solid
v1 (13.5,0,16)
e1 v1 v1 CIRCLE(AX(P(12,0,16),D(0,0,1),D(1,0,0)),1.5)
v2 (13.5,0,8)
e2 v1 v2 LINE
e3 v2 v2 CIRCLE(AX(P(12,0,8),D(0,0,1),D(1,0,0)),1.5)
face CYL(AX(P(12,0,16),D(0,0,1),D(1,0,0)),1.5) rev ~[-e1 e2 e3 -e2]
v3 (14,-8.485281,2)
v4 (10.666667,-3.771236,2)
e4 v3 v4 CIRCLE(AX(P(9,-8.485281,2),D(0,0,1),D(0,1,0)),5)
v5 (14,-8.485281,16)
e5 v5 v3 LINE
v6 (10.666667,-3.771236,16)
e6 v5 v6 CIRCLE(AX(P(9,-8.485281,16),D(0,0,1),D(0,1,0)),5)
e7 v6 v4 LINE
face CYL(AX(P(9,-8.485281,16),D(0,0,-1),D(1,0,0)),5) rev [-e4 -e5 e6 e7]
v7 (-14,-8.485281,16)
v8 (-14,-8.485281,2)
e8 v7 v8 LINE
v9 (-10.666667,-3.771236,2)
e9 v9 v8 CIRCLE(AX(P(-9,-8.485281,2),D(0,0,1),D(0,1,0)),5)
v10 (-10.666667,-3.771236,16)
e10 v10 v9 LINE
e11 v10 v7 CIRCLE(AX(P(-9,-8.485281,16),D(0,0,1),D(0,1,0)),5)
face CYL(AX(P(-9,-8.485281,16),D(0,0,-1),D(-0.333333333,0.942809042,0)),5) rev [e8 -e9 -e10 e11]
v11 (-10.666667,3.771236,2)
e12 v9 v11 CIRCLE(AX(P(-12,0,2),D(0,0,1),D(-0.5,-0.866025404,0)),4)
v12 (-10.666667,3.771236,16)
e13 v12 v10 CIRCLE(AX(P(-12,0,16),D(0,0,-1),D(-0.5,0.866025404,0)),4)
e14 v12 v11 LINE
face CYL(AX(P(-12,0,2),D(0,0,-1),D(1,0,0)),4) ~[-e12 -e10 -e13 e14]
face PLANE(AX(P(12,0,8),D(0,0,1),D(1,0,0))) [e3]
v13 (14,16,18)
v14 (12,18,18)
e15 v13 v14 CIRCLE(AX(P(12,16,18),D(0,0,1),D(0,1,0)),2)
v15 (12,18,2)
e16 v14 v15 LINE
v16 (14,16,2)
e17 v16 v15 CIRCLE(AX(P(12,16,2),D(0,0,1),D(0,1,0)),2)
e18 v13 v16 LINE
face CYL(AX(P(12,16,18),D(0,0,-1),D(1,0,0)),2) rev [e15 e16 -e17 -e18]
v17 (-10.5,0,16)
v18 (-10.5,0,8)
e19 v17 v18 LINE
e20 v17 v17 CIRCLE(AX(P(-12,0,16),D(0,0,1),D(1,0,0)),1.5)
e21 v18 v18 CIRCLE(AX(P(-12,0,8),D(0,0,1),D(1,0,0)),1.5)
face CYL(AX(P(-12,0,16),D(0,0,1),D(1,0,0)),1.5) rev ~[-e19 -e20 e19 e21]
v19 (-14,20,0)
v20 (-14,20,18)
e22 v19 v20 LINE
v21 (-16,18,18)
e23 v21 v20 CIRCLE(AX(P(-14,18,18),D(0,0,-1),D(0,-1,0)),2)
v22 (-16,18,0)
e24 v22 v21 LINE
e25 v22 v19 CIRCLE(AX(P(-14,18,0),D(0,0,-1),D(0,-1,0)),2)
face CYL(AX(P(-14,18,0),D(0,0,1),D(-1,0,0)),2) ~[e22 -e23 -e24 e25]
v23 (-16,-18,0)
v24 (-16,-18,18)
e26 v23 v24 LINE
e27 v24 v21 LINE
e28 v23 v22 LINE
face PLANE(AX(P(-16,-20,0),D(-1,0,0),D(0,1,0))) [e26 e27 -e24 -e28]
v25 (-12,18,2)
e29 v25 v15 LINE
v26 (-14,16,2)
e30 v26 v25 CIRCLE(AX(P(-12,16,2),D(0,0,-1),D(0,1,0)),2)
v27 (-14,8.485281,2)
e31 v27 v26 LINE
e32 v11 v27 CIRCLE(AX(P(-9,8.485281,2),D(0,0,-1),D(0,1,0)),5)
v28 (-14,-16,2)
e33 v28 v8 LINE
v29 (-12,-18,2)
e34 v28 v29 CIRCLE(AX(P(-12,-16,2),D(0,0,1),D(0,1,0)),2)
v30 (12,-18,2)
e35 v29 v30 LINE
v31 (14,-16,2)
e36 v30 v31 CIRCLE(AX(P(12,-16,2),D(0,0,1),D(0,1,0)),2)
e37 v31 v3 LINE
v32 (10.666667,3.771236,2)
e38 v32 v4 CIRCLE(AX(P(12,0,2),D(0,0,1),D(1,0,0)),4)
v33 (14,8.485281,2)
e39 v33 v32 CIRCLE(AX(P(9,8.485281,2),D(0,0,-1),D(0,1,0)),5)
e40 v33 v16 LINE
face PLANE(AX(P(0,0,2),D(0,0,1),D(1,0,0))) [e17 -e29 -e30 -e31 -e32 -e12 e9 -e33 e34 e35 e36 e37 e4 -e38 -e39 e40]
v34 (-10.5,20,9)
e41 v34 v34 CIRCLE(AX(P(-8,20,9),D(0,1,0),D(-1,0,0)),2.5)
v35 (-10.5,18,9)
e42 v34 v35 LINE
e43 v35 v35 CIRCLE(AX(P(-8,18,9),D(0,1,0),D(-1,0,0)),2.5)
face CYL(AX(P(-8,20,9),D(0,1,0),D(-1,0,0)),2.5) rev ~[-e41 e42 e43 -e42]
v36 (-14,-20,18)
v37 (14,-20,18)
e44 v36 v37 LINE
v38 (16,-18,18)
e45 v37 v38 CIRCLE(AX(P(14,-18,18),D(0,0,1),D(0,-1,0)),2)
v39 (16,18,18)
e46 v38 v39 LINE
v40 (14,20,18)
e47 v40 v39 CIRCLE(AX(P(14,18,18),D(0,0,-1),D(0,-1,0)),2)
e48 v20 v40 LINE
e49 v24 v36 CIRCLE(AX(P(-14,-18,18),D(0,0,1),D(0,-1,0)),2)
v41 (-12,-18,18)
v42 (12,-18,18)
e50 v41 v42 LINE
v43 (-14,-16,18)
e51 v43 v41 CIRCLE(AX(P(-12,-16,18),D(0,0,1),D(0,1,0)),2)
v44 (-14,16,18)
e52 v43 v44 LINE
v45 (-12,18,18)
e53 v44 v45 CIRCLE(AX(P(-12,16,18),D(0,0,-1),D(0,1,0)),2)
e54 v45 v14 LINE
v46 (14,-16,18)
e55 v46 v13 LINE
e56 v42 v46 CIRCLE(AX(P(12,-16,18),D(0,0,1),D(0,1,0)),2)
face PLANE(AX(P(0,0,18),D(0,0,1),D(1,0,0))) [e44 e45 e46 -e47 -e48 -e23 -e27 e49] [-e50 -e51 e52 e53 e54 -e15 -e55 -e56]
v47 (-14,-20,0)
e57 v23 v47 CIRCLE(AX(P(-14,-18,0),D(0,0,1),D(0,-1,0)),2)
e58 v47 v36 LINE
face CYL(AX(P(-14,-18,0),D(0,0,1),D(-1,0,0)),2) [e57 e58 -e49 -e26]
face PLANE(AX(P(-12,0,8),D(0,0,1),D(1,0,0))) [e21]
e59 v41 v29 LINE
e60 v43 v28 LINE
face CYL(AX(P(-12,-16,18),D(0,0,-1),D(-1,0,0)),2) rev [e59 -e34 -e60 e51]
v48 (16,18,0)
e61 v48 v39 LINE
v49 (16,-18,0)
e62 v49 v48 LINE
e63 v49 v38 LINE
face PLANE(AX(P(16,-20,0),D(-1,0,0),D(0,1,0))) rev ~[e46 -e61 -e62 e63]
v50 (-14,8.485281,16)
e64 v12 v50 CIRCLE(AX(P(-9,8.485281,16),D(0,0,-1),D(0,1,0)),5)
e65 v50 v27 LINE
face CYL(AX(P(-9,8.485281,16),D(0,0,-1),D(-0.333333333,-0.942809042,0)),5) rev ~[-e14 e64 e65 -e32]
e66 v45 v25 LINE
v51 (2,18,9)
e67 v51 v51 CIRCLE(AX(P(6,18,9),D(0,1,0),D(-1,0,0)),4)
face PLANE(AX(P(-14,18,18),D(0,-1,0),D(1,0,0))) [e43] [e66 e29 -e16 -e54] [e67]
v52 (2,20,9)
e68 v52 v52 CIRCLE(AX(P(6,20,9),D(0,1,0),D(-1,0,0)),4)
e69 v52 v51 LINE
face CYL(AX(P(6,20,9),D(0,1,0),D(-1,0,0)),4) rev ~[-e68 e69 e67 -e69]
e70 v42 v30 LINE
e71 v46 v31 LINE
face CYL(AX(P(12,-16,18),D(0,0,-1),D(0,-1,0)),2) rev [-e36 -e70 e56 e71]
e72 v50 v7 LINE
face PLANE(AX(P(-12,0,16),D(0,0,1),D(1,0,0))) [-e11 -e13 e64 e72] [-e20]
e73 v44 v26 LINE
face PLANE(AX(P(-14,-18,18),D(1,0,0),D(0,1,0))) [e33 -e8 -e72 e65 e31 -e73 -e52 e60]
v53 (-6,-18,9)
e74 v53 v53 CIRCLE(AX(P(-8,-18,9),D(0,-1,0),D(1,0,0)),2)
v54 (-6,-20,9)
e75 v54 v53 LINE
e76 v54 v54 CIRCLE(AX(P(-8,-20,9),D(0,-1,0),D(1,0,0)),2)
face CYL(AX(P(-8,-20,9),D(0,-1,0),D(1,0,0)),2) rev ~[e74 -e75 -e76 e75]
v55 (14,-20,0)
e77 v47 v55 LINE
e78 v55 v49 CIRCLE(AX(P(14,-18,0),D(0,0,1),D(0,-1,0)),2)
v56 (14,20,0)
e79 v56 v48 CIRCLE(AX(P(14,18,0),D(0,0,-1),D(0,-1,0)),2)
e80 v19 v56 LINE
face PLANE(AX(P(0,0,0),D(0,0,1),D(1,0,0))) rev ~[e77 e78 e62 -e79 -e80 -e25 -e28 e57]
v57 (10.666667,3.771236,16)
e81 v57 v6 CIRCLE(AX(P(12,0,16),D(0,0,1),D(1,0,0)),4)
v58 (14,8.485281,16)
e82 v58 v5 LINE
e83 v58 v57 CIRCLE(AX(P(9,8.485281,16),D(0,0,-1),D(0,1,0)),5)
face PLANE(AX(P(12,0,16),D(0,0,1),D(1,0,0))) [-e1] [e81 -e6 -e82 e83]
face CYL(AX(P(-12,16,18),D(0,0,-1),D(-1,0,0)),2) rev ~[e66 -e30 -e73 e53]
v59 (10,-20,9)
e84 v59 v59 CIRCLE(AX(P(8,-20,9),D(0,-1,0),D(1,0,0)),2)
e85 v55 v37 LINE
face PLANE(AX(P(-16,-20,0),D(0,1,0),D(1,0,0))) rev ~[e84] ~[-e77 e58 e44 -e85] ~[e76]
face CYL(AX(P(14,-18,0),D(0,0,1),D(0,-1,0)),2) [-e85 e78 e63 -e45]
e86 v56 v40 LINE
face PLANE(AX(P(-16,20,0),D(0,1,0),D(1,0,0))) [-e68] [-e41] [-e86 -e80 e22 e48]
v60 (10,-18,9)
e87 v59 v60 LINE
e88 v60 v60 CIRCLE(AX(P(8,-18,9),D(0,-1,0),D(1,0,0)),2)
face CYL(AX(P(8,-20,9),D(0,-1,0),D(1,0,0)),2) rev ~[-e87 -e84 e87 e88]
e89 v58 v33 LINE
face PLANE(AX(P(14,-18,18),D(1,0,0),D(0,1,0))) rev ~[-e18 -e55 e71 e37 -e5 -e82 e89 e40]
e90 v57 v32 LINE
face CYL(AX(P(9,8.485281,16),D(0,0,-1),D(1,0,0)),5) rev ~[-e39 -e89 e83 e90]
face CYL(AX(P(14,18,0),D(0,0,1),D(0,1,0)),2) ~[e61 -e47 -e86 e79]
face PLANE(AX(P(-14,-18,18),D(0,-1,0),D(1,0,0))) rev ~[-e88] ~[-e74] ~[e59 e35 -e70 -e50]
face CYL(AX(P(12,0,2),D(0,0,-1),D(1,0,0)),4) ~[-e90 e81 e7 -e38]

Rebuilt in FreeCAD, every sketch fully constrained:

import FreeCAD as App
import Part
import Sketcher


def edges_at(feature, points):
    """Names of the edges that pass closest to the given points."""
    edges = feature.Shape.Edges
    near = lambda p: min(range(len(edges)), key=lambda i: edges[i].distToShape(Part.Vertex(*p))[0])
    return sorted({f"Edge{near(p) + 1}" for p in points})


def add_polygon(sketch, points):
    """Adds a closed chain of lines whose ends are joined by coincident constraints."""
    first, n = sketch.GeometryCount, len(points)
    for a, b in zip(points, points[1:] + points[:1]):
        sketch.addGeometry(Part.LineSegment(App.Vector(*a, 0), App.Vector(*b, 0)), False)
    for i in range(n):
        sketch.addConstraint(Sketcher.Constraint("Coincident", first + i, 2, first + (i + 1) % n, 1))

doc = App.newDocument("Part")
body = doc.addObject("PartDesign::Body", "Body")

sketch1 = doc.addObject("Sketcher::SketchObject", "Sketch")
body.addObject(sketch1)
sketch1.AttachmentSupport = (doc.XY_Plane, [""])
sketch1.MapMode = "FlatFace"
add_polygon(sketch1, [(-16, 20), (-16, -20), (16, -20), (16, 20)])
sketch1.addConstraint(Sketcher.Constraint("Vertical", 0))
sketch1.addConstraint(Sketcher.Constraint("Horizontal", 1))
sketch1.addConstraint(Sketcher.Constraint("Vertical", 2))
sketch1.addConstraint(Sketcher.Constraint("Horizontal", 3))
sketch1.addConstraint(Sketcher.Constraint("Symmetric", 0, 2, 2, 2, -1, 1))
sketch1.addConstraint(Sketcher.Constraint("DistanceX", 1, 1, 1, 2, 32.0))
sketch1.addConstraint(Sketcher.Constraint("DistanceY", 0, 2, 0, 1, 40.0))
pad1 = doc.addObject("PartDesign::Pad", "Pad")
body.addObject(pad1)
pad1.Profile = sketch1
pad1.Length = 18

sketch2 = doc.addObject("Sketcher::SketchObject", "Sketch001")
body.addObject(sketch2)
sketch2.AttachmentSupport = (doc.XY_Plane, [""])
sketch2.MapMode = "FlatFace"
sketch2.AttachmentOffset = App.Placement(App.Vector(0, 0, 18), App.Rotation())
add_polygon(sketch2, [(-14, 18), (-14, -18), (14, -18), (14, 18)])
sketch2.addConstraint(Sketcher.Constraint("Vertical", 0))
sketch2.addConstraint(Sketcher.Constraint("Horizontal", 1))
sketch2.addConstraint(Sketcher.Constraint("Vertical", 2))
sketch2.addConstraint(Sketcher.Constraint("Horizontal", 3))
sketch2.addConstraint(Sketcher.Constraint("Symmetric", 0, 2, 2, 2, -1, 1))
sketch2.addConstraint(Sketcher.Constraint("DistanceX", 1, 1, 1, 2, 28.0))
sketch2.addConstraint(Sketcher.Constraint("DistanceY", 0, 2, 0, 1, 36.0))
pocket1 = doc.addObject("PartDesign::Pocket", "Pocket")
body.addObject(pocket1)
pocket1.Profile = sketch2
pocket1.Length = 16

sketch3 = doc.addObject("Sketcher::SketchObject", "Sketch002")
body.addObject(sketch3)
sketch3.AttachmentSupport = (doc.XZ_Plane, [""])
sketch3.MapMode = "FlatFace"
sketch3.AttachmentOffset = App.Placement(App.Vector(0, 0, -20), App.Rotation())
sketch3.addGeometry(Part.Circle(App.Vector(6, 9, 0), App.Vector(0, 0, 1), 4), False)
sketch3.addGeometry(Part.Circle(App.Vector(-8, 9, 0), App.Vector(0, 0, 1), 2.5), False)
sketch3.addConstraint(Sketcher.Constraint("Horizontal", 0, 3, 1, 3))
sketch3.addConstraint(Sketcher.Constraint("Diameter", 0, 8.0))
sketch3.addConstraint(Sketcher.Constraint("Diameter", 1, 5.0))
sketch3.addConstraint(Sketcher.Constraint("DistanceX", -1, 1, 0, 3, 6.0))
sketch3.addConstraint(Sketcher.Constraint("DistanceY", -1, 1, 0, 3, 9.0))
sketch3.addConstraint(Sketcher.Constraint("DistanceX", 1, 3, -1, 1, 8.0))
pocket2 = doc.addObject("PartDesign::Pocket", "Pocket001")
body.addObject(pocket2)
pocket2.Profile = sketch3
pocket2.Length = 3
pocket2.Reversed = True

sketch4 = doc.addObject("Sketcher::SketchObject", "Sketch003")
body.addObject(sketch4)
sketch4.AttachmentSupport = (doc.XZ_Plane, [""])
sketch4.MapMode = "FlatFace"
sketch4.AttachmentOffset = App.Placement(App.Vector(0, 0, 20), App.Rotation())
sketch4.addGeometry(Part.Circle(App.Vector(-8, 9, 0), App.Vector(0, 0, 1), 2), False)
sketch4.addGeometry(Part.Circle(App.Vector(8, 9, 0), App.Vector(0, 0, 1), 2), False)
sketch4.addConstraint(Sketcher.Constraint("Equal", 0, 1))
sketch4.addConstraint(Sketcher.Constraint("Symmetric", 0, 3, 1, 3, -2))
sketch4.addConstraint(Sketcher.Constraint("Diameter", 0, 4.0))
sketch4.addConstraint(Sketcher.Constraint("DistanceX", 0, 3, -1, 1, 8.0))
sketch4.addConstraint(Sketcher.Constraint("DistanceY", -1, 1, 0, 3, 9.0))
pocket3 = doc.addObject("PartDesign::Pocket", "Pocket002")
body.addObject(pocket3)
pocket3.Profile = sketch4
pocket3.Length = 3

sketch5 = doc.addObject("Sketcher::SketchObject", "Sketch004")
body.addObject(sketch5)
sketch5.AttachmentSupport = (doc.XY_Plane, [""])
sketch5.MapMode = "FlatFace"
sketch5.AttachmentOffset = App.Placement(App.Vector(0, 0, 2), App.Rotation())
sketch5.addGeometry(Part.Circle(App.Vector(-12, 0, 0), App.Vector(0, 0, 1), 4), False)
sketch5.addGeometry(Part.Circle(App.Vector(12, 0, 0), App.Vector(0, 0, 1), 4), False)
sketch5.addConstraint(Sketcher.Constraint("Equal", 0, 1))
sketch5.addConstraint(Sketcher.Constraint("Symmetric", 0, 3, 1, 3, -1, 1))
sketch5.addConstraint(Sketcher.Constraint("PointOnObject", 0, 3, -1))
sketch5.addConstraint(Sketcher.Constraint("Diameter", 0, 8.0))
sketch5.addConstraint(Sketcher.Constraint("DistanceX", 0, 3, -1, 1, 12.0))
pad2 = doc.addObject("PartDesign::Pad", "Pad001")
body.addObject(pad2)
pad2.Profile = sketch5
pad2.Length = 14

sketch6 = doc.addObject("Sketcher::SketchObject", "Sketch005")
body.addObject(sketch6)
sketch6.AttachmentSupport = (doc.XY_Plane, [""])
sketch6.MapMode = "FlatFace"
sketch6.AttachmentOffset = App.Placement(App.Vector(0, 0, 16), App.Rotation())
sketch6.addGeometry(Part.Circle(App.Vector(-12, 0, 0), App.Vector(0, 0, 1), 1.5), False)
sketch6.addGeometry(Part.Circle(App.Vector(12, 0, 0), App.Vector(0, 0, 1), 1.5), False)
sketch6.addConstraint(Sketcher.Constraint("Equal", 0, 1))
sketch6.addConstraint(Sketcher.Constraint("Symmetric", 0, 3, 1, 3, -1, 1))
sketch6.addConstraint(Sketcher.Constraint("PointOnObject", 0, 3, -1))
sketch6.addConstraint(Sketcher.Constraint("Diameter", 0, 3.0))
sketch6.addConstraint(Sketcher.Constraint("DistanceX", 0, 3, -1, 1, 12.0))
pocket4 = doc.addObject("PartDesign::Pocket", "Pocket003")
body.addObject(pocket4)
pocket4.Profile = sketch6
pocket4.Length = 8
doc.recompute()

fillet = doc.addObject("PartDesign::Fillet", "Fillet")
body.addObject(fillet)
fillet.Base = (pocket4, edges_at(pocket4, [
    (14, 3.464, 9),
    (14, -3.464, 9),
    (-14, -3.464, 9),
    (-14, 3.464, 9),
]))
fillet.Radius = 5
doc.recompute()

fillet2 = doc.addObject("PartDesign::Fillet", "Fillet001")
body.addObject(fillet2)
fillet2.Base = (fillet, edges_at(fillet, [
    (-14, -18, 10),
    (14, -18, 10),
    (14, 18, 10),
    (-14, 18, 10),
]))
fillet2.Radius = 2
doc.recompute()

fillet3 = doc.addObject("PartDesign::Fillet", "Fillet002")
body.addObject(fillet3)
fillet3.Base = (fillet2, edges_at(fillet2, [
    (16, 20, 9),
    (16, -20, 9),
    (-16, -20, 9),
    (-16, 20, 9),
]))
fillet3.Radius = 2

doc.recompute()
